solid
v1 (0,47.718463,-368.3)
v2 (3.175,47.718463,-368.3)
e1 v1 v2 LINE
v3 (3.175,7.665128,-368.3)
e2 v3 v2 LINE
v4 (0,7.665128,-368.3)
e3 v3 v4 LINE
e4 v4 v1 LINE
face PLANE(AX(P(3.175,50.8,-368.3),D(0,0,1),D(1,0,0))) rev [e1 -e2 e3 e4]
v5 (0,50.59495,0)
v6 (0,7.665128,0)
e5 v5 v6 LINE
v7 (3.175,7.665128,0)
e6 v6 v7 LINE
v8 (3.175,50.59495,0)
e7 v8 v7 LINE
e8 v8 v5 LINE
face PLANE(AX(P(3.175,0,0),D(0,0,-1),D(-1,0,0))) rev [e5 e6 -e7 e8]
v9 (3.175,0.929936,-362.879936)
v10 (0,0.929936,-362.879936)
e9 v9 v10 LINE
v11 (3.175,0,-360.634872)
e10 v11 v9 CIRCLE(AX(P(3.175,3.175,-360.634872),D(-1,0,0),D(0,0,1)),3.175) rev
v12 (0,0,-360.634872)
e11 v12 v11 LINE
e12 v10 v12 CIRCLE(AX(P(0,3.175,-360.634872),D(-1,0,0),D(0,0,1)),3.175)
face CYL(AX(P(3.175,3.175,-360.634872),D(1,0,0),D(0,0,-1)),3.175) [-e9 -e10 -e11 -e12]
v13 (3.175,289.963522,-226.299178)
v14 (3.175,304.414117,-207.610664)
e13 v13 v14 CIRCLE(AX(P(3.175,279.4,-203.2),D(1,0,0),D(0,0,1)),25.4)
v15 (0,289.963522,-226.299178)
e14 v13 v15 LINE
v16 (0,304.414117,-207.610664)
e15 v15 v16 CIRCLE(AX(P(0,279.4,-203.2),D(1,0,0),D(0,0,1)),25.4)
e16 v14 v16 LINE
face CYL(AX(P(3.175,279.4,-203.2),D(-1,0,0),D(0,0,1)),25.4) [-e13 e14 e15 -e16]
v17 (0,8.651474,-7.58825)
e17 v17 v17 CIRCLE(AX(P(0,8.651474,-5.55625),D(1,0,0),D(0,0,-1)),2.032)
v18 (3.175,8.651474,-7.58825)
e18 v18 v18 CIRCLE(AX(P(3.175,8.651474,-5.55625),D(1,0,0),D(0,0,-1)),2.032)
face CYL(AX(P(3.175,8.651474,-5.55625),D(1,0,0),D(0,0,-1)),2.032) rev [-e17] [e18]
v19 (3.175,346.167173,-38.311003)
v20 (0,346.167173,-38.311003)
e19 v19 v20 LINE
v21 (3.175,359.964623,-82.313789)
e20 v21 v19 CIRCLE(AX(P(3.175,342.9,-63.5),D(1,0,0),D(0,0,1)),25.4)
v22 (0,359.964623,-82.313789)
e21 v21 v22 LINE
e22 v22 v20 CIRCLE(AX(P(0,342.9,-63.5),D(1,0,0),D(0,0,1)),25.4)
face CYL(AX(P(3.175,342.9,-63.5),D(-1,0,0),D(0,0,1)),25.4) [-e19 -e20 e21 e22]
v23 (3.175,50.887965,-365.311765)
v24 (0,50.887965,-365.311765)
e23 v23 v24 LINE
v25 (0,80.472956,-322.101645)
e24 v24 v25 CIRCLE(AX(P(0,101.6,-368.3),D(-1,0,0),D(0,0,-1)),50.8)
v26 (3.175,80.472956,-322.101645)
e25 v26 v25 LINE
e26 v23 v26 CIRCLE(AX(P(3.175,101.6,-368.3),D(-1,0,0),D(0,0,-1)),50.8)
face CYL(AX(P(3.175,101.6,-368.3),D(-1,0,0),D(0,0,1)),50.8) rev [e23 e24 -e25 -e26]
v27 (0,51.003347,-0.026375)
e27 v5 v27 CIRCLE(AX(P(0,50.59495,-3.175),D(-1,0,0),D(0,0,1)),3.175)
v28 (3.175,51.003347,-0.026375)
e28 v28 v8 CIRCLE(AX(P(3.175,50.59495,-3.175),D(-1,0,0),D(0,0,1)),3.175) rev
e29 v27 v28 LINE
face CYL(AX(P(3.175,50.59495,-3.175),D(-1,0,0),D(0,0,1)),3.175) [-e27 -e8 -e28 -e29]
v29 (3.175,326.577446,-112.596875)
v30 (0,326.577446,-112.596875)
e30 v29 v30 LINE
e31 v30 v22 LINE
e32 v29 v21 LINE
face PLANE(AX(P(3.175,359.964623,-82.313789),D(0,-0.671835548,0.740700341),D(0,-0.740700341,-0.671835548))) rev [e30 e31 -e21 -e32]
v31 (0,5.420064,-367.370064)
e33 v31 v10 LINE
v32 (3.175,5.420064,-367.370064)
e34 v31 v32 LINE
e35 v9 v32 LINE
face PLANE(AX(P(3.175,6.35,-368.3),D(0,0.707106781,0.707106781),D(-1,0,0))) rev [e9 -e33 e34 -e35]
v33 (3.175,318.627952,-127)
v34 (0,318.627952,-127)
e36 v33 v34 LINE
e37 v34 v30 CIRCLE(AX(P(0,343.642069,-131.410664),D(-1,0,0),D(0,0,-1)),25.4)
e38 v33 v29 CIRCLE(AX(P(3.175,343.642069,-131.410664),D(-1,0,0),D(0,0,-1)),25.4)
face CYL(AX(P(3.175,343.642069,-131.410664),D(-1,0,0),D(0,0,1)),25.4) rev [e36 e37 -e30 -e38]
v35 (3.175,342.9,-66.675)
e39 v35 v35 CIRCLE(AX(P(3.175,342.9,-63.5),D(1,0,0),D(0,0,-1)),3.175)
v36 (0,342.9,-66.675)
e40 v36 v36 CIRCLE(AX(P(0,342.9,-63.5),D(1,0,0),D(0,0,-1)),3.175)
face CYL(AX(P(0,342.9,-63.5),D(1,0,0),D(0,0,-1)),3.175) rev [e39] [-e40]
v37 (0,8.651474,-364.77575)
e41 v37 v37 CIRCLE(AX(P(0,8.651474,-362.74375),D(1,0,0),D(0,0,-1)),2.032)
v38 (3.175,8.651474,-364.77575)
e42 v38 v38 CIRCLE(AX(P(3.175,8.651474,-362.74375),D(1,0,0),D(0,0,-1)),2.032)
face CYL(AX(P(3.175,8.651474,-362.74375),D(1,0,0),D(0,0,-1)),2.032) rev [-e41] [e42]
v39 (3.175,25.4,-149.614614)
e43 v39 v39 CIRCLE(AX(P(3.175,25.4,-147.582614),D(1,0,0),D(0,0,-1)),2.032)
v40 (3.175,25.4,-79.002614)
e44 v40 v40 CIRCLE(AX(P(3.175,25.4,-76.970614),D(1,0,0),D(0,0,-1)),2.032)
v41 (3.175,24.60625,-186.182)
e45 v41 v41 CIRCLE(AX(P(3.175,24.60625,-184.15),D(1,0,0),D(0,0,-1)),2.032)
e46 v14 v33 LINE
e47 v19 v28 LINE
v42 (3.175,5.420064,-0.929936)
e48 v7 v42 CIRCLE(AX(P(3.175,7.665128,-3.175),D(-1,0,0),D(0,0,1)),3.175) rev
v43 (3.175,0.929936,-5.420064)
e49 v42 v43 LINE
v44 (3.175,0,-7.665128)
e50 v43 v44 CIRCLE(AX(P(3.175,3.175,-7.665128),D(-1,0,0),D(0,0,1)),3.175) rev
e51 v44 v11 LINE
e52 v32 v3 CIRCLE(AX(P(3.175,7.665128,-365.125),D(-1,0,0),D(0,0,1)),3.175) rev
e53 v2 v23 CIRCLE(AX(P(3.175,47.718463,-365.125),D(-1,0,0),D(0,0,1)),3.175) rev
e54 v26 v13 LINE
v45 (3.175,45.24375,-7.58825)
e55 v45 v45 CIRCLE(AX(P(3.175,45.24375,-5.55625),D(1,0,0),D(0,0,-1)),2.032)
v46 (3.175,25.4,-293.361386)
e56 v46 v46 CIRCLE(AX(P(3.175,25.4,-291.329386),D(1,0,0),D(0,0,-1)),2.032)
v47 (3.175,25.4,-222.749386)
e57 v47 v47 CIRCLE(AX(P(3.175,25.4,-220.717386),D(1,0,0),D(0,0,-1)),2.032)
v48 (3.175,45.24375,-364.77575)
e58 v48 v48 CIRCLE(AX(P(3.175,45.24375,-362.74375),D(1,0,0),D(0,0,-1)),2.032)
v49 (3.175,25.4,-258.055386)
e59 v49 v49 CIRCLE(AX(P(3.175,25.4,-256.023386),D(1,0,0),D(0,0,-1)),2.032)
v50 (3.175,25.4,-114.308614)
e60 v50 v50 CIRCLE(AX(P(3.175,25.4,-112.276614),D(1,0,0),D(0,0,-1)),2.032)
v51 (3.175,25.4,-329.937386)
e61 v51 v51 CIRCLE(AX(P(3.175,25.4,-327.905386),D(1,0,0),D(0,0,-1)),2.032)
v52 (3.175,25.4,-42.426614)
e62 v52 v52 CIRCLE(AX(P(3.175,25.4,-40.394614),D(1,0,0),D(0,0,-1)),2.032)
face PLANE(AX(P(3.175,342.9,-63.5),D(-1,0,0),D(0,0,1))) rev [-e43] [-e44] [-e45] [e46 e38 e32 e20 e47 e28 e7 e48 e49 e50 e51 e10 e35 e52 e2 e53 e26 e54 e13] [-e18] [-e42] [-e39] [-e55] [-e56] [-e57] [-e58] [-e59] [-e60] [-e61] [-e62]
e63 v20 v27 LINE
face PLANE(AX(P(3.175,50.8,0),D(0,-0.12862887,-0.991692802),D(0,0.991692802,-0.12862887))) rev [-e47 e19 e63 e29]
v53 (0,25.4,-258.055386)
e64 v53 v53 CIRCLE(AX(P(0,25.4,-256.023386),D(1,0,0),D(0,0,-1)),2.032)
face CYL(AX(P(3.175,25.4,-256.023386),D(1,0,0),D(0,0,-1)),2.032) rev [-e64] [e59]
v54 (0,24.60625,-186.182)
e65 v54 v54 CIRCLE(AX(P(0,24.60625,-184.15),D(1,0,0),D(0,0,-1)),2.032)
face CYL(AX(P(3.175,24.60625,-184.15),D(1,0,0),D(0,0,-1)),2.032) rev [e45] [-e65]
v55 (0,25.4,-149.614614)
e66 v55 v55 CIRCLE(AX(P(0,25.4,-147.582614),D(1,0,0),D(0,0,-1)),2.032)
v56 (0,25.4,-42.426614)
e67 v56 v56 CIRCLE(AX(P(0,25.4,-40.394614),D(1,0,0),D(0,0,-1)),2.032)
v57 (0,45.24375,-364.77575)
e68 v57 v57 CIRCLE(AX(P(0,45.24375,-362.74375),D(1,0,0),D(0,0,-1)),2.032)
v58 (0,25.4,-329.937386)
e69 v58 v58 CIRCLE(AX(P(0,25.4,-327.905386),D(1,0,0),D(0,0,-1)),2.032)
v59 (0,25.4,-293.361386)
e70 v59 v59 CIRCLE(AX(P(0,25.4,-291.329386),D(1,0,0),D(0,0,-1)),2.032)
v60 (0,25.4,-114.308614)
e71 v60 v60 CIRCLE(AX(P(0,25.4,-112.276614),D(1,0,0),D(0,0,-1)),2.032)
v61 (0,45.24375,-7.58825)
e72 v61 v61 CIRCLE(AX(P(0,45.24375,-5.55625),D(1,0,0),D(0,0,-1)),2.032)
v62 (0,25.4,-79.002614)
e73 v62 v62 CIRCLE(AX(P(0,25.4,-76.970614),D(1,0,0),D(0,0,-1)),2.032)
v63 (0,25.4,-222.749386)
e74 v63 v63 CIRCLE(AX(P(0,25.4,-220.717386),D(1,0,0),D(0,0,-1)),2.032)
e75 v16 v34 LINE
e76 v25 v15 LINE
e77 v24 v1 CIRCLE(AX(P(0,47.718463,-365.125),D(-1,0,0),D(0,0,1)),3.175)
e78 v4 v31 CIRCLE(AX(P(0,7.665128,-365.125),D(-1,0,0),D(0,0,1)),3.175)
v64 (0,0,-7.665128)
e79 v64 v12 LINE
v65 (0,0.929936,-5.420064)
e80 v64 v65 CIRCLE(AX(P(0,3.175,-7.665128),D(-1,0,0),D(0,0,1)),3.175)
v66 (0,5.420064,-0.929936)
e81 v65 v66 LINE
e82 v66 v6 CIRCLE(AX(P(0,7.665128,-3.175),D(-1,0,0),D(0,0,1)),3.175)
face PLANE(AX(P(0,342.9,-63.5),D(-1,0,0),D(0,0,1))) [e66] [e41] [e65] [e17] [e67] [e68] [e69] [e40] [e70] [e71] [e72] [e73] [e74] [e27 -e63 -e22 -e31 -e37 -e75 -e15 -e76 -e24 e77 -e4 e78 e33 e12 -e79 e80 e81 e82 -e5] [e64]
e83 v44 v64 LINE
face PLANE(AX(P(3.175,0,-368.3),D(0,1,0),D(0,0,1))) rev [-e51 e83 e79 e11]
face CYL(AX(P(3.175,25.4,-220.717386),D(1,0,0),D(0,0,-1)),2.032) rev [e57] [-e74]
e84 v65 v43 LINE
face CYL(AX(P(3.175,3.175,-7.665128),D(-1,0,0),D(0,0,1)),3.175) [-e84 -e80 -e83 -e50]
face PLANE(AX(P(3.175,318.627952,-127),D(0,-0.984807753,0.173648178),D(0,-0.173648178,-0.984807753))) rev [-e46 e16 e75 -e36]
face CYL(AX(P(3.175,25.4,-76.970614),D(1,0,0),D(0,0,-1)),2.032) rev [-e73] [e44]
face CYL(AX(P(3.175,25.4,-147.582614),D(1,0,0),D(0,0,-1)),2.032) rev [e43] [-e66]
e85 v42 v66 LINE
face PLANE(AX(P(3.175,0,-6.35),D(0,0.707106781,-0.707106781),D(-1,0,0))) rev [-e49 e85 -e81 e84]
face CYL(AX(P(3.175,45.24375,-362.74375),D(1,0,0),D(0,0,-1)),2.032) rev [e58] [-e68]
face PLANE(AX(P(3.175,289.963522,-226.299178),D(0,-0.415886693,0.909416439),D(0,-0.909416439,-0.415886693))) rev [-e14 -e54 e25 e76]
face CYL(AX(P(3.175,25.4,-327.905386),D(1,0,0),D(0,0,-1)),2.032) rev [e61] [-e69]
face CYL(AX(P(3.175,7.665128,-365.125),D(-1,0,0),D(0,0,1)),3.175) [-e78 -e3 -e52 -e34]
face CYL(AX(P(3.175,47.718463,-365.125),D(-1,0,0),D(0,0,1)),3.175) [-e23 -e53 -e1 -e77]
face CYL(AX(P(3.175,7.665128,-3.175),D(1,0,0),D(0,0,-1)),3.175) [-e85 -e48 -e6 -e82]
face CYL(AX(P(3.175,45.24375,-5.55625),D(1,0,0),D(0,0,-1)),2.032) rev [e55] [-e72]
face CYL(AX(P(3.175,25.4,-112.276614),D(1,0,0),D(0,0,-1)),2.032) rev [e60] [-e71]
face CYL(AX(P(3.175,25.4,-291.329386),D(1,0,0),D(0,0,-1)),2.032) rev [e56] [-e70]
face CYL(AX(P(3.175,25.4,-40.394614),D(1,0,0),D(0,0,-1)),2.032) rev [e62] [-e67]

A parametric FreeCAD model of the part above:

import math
import FreeCAD as App
import Part
import Sketcher
Q = App.Units.Quantity


def edges_at(feature, points):
    """Names of the edges that pass closest to the given points."""
    edges = feature.Shape.Edges
    near = lambda p: min(range(len(edges)), key=lambda i: edges[i].distToShape(Part.Vertex(*p))[0])
    return sorted({f"Edge{near(p) + 1}" for p in points})

doc = App.newDocument("Part")
body = doc.addObject("PartDesign::Body", "Body")

sketch1 = body.newObject("Sketcher::SketchObject", "Sketch")
sketch1.AttachmentSupport = (doc.getObject("YZ_Plane"), [""])
sketch1.MapMode = "FlatFace"
sketch1.addGeometry([
    Part.LineSegment(App.Vector(51, 0, 0), App.Vector(0, 0, 0)),
    Part.LineSegment(App.Vector(0, 0, 0), App.Vector(0, -368, 0)),
    Part.LineSegment(App.Vector(0, -368, 0), App.Vector(51, -368, 0)),
    Part.ArcOfCircle(Part.Circle(App.Vector(102, -368, 0), App.Vector(0, 0, 1), 51), math.radians(115), math.radians(180)),
    Part.LineSegment(App.Vector(80, -322, 0), App.Vector(290, -226, 0)),
    Part.ArcOfCircle(Part.Circle(App.Vector(279, -203, 0), App.Vector(0, 0, 1), 25), math.radians(-65), math.radians(-10)),
    Part.LineSegment(App.Vector(304, -208, 0), App.Vector(319, -127, 0)),
    Part.ArcOfCircle(Part.Circle(App.Vector(344, -131, 0), App.Vector(0, 0, 1), 25), math.radians(132), math.radians(170)),
    Part.LineSegment(App.Vector(327, -113, 0), App.Vector(360, -82, 0)),
    Part.ArcOfCircle(Part.Circle(App.Vector(343, -64, 0), App.Vector(0, 0, 1), 25), math.radians(-48), math.radians(83)),
    Part.LineSegment(App.Vector(346, -38, 0), App.Vector(51, 0, 0)),
], False)
sketch1.addConstraint([
    Sketcher.Constraint("Coincident", 0, 2, 1, 1),
    Sketcher.Constraint("Coincident", 1, 2, 2, 1),
    Sketcher.Constraint("Coincident", 2, 2, 3, 2),
    Sketcher.Constraint("Tangent", 3, 1, 4, 1),
    Sketcher.Constraint("Tangent", 4, 2, 5, 1),
    Sketcher.Constraint("Tangent", 5, 2, 6, 1),
    Sketcher.Constraint("Tangent", 6, 2, 7, 2),
    Sketcher.Constraint("Tangent", 7, 1, 8, 1),
    Sketcher.Constraint("Tangent", 8, 2, 9, 1),
    Sketcher.Constraint("Tangent", 9, 2, 10, 1),
    Sketcher.Constraint("Coincident", 10, 2, 0, 1),
    Sketcher.Constraint("Horizontal", 0),
    Sketcher.Constraint("Vertical", 1),
    Sketcher.Constraint("Horizontal", 2),
    Sketcher.Constraint("Coincident", 0, 2, -1, 1),
    Sketcher.Constraint("Equal", 5, 7),
    Sketcher.Constraint("Equal", 7, 9),
    Sketcher.Constraint("Horizontal", 3, 3, 1, 2),
    Sketcher.Constraint("Vertical", 2, 2, 10, 2),
    Sketcher.Constraint("Radius", 3, Q("2 in")),
    Sketcher.Constraint("Radius", 5, Q("1 in")),
    Sketcher.Constraint("DistanceX", 0, 2, 0, 1, Q("2 in")),
    Sketcher.Constraint("DistanceY", 1, 2, 1, 1, Q("14.5 in")),
    Sketcher.Constraint("DistanceX", -1, 1, 5, 3, Q("11 in")),
    Sketcher.Constraint("DistanceY", 5, 3, -1, 1, Q("8 in")),
    Sketcher.Constraint("DistanceY", 6, 2, -1, 1, Q("5 in")),
    Sketcher.Constraint("Angle", 6, Q("80 deg")),
    Sketcher.Constraint("DistanceY", 3, 3, 9, 3, Q("12 in")),
    Sketcher.Constraint("DistanceX", -1, 1, 9, 3, Q("13.5 in")),
])
pad1 = body.newObject("PartDesign::Pad", "Pad")
pad1.Profile = sketch1
pad1.Length = Q("0.125 in")

sketch2 = body.newObject("Sketcher::SketchObject", "Sketch001")
sketch2.AttachmentSupport = (doc.getObject("YZ_Plane"), [""])
sketch2.MapMode = "FlatFace"
sketch2.AttachmentOffset = App.Placement(App.Vector(0, 0, 0.125 * 25.4), App.Rotation())
sketch2.addGeometry([
    Part.Circle(App.Vector(24.6, -184.2, 0), App.Vector(0, 0, 1), 2),
    Part.Circle(App.Vector(25.4, -220.7, 0), App.Vector(0, 0, 1), 2),
    Part.Circle(App.Vector(25.4, -256, 0), App.Vector(0, 0, 1), 2),
    Part.Circle(App.Vector(25.4, -291.3, 0), App.Vector(0, 0, 1), 2),
    Part.Circle(App.Vector(25.4, -327.9, 0), App.Vector(0, 0, 1), 2),
    Part.Circle(App.Vector(25.4, -147.6, 0), App.Vector(0, 0, 1), 2),
    Part.Circle(App.Vector(25.4, -112.3, 0), App.Vector(0, 0, 1), 2),
    Part.Circle(App.Vector(25.4, -77, 0), App.Vector(0, 0, 1), 2),
    Part.Circle(App.Vector(25.4, -40.4, 0), App.Vector(0, 0, 1), 2),
], False)
sketch2.addConstraint([
    Sketcher.Constraint("Equal", 0, 1),
    Sketcher.Constraint("Equal", 1, 2),
    Sketcher.Constraint("Equal", 2, 3),
    Sketcher.Constraint("Equal", 3, 4),
    Sketcher.Constraint("Equal", 4, 5),
    Sketcher.Constraint("Equal", 5, 6),
    Sketcher.Constraint("Equal", 6, 7),
    Sketcher.Constraint("Equal", 7, 8),
    Sketcher.Constraint("Vertical", 1, 3, 2, 3),
    Sketcher.Constraint("Vertical", 2, 3, 3, 3),
    Sketcher.Constraint("Vertical", 3, 3, 4, 3),
    Sketcher.Constraint("Vertical", 4, 3, 5, 3),
    Sketcher.Constraint("Vertical", 5, 3, 6, 3),
    Sketcher.Constraint("Vertical", 6, 3, 7, 3),
    Sketcher.Constraint("Vertical", 7, 3, 8, 3),
    Sketcher.Constraint("Diameter", 0, Q("0.16 in")),
    Sketcher.Constraint("DistanceX", -1, 1, 1, 3, Q("1 in")),
    Sketcher.Constraint("DistanceY", 0, 3, -1, 1, Q("7.25 in")),
    Sketcher.Constraint("DistanceY", 2, 3, 1, 3, Q("1.39 in")),
    Sketcher.Constraint("DistanceY", 3, 3, 2, 3, Q("1.39 in")),
    Sketcher.Constraint("DistanceY", 4, 3, 3, 3, Q("1.44 in")),
    Sketcher.Constraint("DistanceY", 5, 3, 6, 3, Q("1.39 in")),
    Sketcher.Constraint("DistanceY", 6, 3, 7, 3, Q("1.39 in")),
    Sketcher.Constraint("DistanceY", 7, 3, 8, 3, Q("1.44 in")),
    Sketcher.Constraint("DistanceX", -1, 1, 0, 3, Q("0.96875 in")),
    Sketcher.Constraint("DistanceY", 1, 3, -1, 1, Q("220.717386 mm")),
    Sketcher.Constraint("DistanceY", 5, 3, -1, 1, Q("147.582614 mm")),
])
doc.recompute()
hole = body.newObject("PartDesign::Hole", "Hole")
hole.Profile = sketch2
hole.ThreadType = "None"
hole.Diameter = Q("0.16 in")
hole.DepthType = "ThroughAll"

sketch3 = body.newObject("Sketcher::SketchObject", "Sketch002")
sketch3.AttachmentSupport = (doc.getObject("YZ_Plane"), [""])
sketch3.MapMode = "FlatFace"
sketch3.AttachmentOffset = App.Placement(App.Vector(0, 0, 0.125 * 25.4), App.Rotation())
sketch3.addGeometry(Part.Circle(App.Vector(342.9, -63.5, 0), App.Vector(0, 0, 1), 3.2), False)
sketch3.addConstraint([
    Sketcher.Constraint("Diameter", 0, Q("0.25 in")),
    Sketcher.Constraint("DistanceX", -1, 1, 0, 3, Q("13.5 in")),
    Sketcher.Constraint("DistanceY", 0, 3, -1, 1, Q("2.5 in")),
])
pocket1 = body.newObject("PartDesign::Pocket", "Pocket")
pocket1.Profile = sketch3
pocket1.Type = "ThroughAll"
doc.recompute()

chamfer = body.newObject("PartDesign::Chamfer", "Chamfer")
chamfer.Base = (pocket1, edges_at(pocket1, [(1.587, 0, 0), (1.587, 0, -368.3)]))
chamfer.Size = Q("0.25 in")
doc.recompute()

fillet = body.newObject("PartDesign::Fillet", "Fillet")
fillet.Base = (chamfer, edges_at(chamfer, [
    (1.587, 0, -6.35),
    (1.587, 0, -361.95),
    (1.587, 6.35, 0),
    (1.587, 50.8, 0),
    (1.587, 50.8, -368.3),
    (1.587, 6.35, -368.3),
]))
fillet.Radius = Q("0.125 in")

sketch4 = body.newObject("Sketcher::SketchObject", "Sketch003")
sketch4.AttachmentSupport = (doc.getObject("YZ_Plane"), [""])
sketch4.MapMode = "FlatFace"
sketch4.AttachmentOffset = App.Placement(App.Vector(0, 0, 0.125 * 25.4), App.Rotation())
sketch4.addGeometry([
    Part.Circle(App.Vector(45.2, -5.6, 0), App.Vector(0, 0, 1), 2),
    Part.Circle(App.Vector(8.7, -5.6, 0), App.Vector(0, 0, 1), 2),
    Part.Circle(App.Vector(45.2, -362.7, 0), App.Vector(0, 0, 1), 2),
    Part.Circle(App.Vector(8.7, -362.7, 0), App.Vector(0, 0, 1), 2),
], False)
sketch4.addConstraint([
    Sketcher.Constraint("Equal", 0, 1),
    Sketcher.Constraint("Equal", 1, 2),
    Sketcher.Constraint("Equal", 2, 3),
    Sketcher.Constraint("Horizontal", 0, 3, 1, 3),
    Sketcher.Constraint("Horizontal", 2, 3, 3, 3),
    Sketcher.Constraint("Vertical", 0, 3, 2, 3),
    Sketcher.Constraint("Vertical", 1, 3, 3, 3),
    Sketcher.Constraint("Diameter", 0, Q("0.16 in")),
    Sketcher.Constraint("DistanceX", -1, 1, 0, 3, Q("1.78125 in")),
    Sketcher.Constraint("DistanceY", 0, 3, -1, 1, Q("0.21875 in")),
    Sketcher.Constraint("DistanceY", 2, 3, -1, 1, Q("14.28125 in")),
    Sketcher.Constraint("DistanceX", -1, 1, 1, 3, Q("8.651474 mm")),
])
doc.recompute()
hole2 = body.newObject("PartDesign::Hole", "Hole001")
hole2.Profile = sketch4
hole2.ThreadType = "None"
hole2.Diameter = Q("0.16 in")
hole2.DepthType = "ThroughAll"

doc.recompute()
